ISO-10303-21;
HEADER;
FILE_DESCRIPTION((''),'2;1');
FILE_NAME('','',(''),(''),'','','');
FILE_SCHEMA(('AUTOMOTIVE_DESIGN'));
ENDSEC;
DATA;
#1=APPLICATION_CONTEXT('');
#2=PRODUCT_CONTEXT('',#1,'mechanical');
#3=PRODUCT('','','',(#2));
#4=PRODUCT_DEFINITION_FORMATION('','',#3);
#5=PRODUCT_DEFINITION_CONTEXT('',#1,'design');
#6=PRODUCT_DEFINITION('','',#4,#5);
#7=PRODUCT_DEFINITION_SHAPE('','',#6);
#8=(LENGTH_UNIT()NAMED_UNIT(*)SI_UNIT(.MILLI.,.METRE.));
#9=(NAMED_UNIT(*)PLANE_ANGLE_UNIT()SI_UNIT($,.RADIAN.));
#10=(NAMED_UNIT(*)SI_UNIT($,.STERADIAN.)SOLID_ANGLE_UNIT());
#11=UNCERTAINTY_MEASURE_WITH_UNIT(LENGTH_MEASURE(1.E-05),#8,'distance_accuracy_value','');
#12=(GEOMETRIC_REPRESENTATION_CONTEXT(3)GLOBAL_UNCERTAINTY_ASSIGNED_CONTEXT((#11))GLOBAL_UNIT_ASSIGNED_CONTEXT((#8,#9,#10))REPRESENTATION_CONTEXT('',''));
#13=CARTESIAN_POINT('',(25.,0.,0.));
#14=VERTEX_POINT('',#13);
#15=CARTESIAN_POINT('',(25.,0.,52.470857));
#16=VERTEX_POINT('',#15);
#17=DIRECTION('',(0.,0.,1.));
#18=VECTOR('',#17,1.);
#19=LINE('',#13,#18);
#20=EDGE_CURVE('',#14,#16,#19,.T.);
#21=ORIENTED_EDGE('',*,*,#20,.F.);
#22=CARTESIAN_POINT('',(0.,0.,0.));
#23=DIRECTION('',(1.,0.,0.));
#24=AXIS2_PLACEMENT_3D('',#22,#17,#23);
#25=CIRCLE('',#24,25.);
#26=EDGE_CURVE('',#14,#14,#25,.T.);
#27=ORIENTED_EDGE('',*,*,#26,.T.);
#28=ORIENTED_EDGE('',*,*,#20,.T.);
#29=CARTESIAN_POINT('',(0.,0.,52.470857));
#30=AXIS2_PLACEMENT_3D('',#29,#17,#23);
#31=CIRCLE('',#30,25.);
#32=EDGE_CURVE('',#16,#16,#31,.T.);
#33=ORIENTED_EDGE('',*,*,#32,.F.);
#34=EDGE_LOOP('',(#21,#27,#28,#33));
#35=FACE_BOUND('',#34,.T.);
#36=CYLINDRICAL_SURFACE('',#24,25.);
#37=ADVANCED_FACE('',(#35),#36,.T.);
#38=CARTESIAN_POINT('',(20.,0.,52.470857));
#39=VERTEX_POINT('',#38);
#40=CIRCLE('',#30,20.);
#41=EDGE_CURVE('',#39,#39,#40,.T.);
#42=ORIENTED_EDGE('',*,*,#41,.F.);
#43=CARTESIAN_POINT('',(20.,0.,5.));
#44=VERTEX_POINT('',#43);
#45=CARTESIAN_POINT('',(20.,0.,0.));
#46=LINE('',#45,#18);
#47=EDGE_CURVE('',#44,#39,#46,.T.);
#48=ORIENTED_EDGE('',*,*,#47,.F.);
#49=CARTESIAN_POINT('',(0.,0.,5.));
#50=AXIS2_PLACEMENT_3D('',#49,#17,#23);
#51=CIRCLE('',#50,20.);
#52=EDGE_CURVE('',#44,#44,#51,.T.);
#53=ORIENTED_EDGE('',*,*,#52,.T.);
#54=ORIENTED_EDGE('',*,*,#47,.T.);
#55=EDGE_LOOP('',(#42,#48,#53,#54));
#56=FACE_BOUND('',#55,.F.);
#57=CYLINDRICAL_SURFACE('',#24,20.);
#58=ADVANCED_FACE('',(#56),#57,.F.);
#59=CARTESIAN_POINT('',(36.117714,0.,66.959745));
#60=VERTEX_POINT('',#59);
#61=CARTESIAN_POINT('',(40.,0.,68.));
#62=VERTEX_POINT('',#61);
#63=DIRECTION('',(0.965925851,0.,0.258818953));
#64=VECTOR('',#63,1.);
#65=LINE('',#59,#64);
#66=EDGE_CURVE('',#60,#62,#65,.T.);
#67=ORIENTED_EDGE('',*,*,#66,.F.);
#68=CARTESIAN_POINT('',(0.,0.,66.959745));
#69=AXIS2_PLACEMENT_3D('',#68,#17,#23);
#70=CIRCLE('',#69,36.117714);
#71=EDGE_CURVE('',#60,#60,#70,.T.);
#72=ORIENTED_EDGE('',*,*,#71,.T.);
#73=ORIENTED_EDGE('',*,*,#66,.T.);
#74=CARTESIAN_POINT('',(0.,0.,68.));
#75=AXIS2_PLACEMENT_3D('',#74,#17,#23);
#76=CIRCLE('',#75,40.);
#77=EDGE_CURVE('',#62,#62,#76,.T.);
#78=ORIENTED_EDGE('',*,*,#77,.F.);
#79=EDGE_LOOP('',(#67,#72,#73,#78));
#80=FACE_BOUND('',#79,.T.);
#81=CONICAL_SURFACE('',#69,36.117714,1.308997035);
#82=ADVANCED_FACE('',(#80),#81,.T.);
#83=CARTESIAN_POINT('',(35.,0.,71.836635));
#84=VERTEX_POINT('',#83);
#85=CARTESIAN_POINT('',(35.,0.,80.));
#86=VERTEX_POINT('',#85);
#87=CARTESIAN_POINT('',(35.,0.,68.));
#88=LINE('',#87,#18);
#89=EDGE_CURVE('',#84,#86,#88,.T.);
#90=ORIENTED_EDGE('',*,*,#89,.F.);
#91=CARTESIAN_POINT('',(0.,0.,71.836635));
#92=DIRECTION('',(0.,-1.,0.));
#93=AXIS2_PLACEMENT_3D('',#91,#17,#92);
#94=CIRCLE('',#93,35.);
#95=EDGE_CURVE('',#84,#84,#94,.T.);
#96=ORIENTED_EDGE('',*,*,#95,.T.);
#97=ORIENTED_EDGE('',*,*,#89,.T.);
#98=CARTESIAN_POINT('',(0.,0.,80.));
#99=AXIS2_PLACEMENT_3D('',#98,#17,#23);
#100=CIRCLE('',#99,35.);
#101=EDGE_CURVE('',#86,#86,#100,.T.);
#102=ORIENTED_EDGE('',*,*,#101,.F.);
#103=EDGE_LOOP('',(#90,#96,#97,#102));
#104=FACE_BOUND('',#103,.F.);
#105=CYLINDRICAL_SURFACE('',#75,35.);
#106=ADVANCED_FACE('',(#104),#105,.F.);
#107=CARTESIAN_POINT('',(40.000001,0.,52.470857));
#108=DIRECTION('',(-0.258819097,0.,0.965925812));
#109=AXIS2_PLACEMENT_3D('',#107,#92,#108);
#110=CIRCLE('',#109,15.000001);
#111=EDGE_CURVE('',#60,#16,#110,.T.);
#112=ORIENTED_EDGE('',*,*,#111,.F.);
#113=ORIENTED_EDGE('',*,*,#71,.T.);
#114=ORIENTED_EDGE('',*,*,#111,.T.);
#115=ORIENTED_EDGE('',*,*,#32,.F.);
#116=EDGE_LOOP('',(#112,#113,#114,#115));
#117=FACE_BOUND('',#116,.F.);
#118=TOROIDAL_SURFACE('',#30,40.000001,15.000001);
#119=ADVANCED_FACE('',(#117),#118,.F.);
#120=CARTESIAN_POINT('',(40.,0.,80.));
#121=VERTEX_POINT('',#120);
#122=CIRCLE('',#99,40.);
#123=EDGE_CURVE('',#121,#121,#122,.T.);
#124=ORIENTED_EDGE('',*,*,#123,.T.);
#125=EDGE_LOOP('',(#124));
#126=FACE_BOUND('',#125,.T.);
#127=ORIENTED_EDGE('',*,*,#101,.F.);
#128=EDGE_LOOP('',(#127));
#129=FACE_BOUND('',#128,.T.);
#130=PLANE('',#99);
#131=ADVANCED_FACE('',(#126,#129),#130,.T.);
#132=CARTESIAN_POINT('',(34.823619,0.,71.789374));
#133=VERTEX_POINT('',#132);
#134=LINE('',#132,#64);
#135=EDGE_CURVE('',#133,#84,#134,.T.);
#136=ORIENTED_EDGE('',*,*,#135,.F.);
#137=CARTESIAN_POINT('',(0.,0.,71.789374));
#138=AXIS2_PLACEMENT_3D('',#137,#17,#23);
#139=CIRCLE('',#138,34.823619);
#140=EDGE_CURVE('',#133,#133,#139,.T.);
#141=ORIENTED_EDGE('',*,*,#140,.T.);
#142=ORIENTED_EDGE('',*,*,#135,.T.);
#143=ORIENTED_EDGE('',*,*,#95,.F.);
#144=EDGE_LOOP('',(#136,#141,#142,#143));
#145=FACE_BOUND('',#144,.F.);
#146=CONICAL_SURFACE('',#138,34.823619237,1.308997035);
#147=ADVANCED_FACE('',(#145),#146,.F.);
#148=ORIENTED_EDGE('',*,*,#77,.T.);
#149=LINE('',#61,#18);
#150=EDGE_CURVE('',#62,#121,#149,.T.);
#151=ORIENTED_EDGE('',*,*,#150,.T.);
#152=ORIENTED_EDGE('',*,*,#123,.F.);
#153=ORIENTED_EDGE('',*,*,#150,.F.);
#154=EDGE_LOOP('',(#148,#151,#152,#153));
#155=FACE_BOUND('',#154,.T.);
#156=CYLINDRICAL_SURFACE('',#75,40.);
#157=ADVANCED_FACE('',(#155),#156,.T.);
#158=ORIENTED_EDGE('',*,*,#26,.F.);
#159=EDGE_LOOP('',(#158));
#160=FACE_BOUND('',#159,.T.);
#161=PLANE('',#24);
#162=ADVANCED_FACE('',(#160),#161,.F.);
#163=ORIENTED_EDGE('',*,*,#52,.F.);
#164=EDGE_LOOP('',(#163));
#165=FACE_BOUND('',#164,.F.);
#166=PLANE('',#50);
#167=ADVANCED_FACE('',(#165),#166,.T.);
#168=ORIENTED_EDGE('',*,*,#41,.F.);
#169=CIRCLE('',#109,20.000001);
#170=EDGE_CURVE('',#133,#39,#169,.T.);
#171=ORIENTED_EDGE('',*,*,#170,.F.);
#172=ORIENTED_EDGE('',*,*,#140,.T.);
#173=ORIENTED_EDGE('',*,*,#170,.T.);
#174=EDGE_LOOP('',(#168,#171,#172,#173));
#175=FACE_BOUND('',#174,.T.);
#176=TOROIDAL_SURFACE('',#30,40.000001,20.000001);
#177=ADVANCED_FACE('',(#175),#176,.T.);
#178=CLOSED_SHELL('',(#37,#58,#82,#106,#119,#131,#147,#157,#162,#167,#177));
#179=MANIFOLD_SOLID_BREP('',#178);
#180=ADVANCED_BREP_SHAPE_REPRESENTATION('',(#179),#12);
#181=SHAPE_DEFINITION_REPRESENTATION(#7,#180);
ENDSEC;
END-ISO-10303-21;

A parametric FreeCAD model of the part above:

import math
import FreeCAD as App
import Part
import Sketcher
Q = App.Units.Quantity


def faces_at(feature, points):
    """Names of the faces that lie closest to the given points."""
    faces = feature.Shape.Faces
    near = lambda p: min(range(len(faces)), key=lambda i: faces[i].distToShape(Part.Vertex(*p))[0])
    return sorted({f"Face{near(p) + 1}" for p in points})

doc = App.newDocument("Part")
body = doc.addObject("PartDesign::Body", "Body")

sketch1 = body.newObject("Sketcher::SketchObject", "Sketch")
sketch1.AttachmentSupport = (doc.getObject("XZ_Plane"), [""])
sketch1.MapMode = "FlatFace"
sketch1.addGeometry([
    Part.LineSegment(App.Vector(0, 0, 0), App.Vector(25, 0, 0)),
    Part.LineSegment(App.Vector(25, 0, 0), App.Vector(25, 52.5, 0)),
    Part.ArcOfCircle(Part.Circle(App.Vector(40, 52.5, 0), App.Vector(0, 0, 1), 15), math.radians(105), math.radians(180)),
    Part.LineSegment(App.Vector(36.1, 67, 0), App.Vector(40, 68, 0)),
    Part.LineSegment(App.Vector(40, 68, 0), App.Vector(40, 80, 0)),
    Part.LineSegment(App.Vector(40, 80, 0), App.Vector(0, 80, 0)),
    Part.LineSegment(App.Vector(0, 80, 0), App.Vector(0, 0, 0)),
], False)
sketch1.addConstraint([
    Sketcher.Constraint("Coincident", 0, 2, 1, 1),
    Sketcher.Constraint("Tangent", 1, 2, 2, 2),
    Sketcher.Constraint("Tangent", 2, 1, 3, 1),
    Sketcher.Constraint("Coincident", 3, 2, 4, 1),
    Sketcher.Constraint("Coincident", 4, 2, 5, 1),
    Sketcher.Constraint("Coincident", 5, 2, 6, 1),
    Sketcher.Constraint("Coincident", 6, 2, 0, 1),
    Sketcher.Constraint("Horizontal", 0),
    Sketcher.Constraint("Vertical", 1),
    Sketcher.Constraint("Vertical", 4),
    Sketcher.Constraint("Horizontal", 5),
    Sketcher.Constraint("Vertical", 6),
    Sketcher.Constraint("Coincident", 6, 2, -1, 1),
    Sketcher.Constraint("Vertical", 2, 3, 3, 2),
    Sketcher.Constraint("Radius", 2, Q("15.000001 mm")),
    Sketcher.Constraint("DistanceX", 0, 1, 0, 2, Q("25 mm")),
    Sketcher.Constraint("DistanceY", 4, 1, 4, 2, Q("12 mm")),
    Sketcher.Constraint("DistanceY", 6, 2, 6, 1, Q("80 mm")),
    Sketcher.Constraint("Angle", 3, Q("14.999995 deg")),
])
revolution = body.newObject("PartDesign::Revolution", "Revolution")
revolution.Profile = sketch1
revolution.ReferenceAxis = (sketch1, ["V_Axis"])
revolution.Angle = 360
doc.recompute()

thickness = body.newObject("PartDesign::Thickness", "Thickness")
thickness.Base = (revolution, faces_at(revolution, [(0, 0, 80)]))
thickness.Value = 5
thickness.Reversed = True
thickness.Join = "Arc"

doc.recompute()
